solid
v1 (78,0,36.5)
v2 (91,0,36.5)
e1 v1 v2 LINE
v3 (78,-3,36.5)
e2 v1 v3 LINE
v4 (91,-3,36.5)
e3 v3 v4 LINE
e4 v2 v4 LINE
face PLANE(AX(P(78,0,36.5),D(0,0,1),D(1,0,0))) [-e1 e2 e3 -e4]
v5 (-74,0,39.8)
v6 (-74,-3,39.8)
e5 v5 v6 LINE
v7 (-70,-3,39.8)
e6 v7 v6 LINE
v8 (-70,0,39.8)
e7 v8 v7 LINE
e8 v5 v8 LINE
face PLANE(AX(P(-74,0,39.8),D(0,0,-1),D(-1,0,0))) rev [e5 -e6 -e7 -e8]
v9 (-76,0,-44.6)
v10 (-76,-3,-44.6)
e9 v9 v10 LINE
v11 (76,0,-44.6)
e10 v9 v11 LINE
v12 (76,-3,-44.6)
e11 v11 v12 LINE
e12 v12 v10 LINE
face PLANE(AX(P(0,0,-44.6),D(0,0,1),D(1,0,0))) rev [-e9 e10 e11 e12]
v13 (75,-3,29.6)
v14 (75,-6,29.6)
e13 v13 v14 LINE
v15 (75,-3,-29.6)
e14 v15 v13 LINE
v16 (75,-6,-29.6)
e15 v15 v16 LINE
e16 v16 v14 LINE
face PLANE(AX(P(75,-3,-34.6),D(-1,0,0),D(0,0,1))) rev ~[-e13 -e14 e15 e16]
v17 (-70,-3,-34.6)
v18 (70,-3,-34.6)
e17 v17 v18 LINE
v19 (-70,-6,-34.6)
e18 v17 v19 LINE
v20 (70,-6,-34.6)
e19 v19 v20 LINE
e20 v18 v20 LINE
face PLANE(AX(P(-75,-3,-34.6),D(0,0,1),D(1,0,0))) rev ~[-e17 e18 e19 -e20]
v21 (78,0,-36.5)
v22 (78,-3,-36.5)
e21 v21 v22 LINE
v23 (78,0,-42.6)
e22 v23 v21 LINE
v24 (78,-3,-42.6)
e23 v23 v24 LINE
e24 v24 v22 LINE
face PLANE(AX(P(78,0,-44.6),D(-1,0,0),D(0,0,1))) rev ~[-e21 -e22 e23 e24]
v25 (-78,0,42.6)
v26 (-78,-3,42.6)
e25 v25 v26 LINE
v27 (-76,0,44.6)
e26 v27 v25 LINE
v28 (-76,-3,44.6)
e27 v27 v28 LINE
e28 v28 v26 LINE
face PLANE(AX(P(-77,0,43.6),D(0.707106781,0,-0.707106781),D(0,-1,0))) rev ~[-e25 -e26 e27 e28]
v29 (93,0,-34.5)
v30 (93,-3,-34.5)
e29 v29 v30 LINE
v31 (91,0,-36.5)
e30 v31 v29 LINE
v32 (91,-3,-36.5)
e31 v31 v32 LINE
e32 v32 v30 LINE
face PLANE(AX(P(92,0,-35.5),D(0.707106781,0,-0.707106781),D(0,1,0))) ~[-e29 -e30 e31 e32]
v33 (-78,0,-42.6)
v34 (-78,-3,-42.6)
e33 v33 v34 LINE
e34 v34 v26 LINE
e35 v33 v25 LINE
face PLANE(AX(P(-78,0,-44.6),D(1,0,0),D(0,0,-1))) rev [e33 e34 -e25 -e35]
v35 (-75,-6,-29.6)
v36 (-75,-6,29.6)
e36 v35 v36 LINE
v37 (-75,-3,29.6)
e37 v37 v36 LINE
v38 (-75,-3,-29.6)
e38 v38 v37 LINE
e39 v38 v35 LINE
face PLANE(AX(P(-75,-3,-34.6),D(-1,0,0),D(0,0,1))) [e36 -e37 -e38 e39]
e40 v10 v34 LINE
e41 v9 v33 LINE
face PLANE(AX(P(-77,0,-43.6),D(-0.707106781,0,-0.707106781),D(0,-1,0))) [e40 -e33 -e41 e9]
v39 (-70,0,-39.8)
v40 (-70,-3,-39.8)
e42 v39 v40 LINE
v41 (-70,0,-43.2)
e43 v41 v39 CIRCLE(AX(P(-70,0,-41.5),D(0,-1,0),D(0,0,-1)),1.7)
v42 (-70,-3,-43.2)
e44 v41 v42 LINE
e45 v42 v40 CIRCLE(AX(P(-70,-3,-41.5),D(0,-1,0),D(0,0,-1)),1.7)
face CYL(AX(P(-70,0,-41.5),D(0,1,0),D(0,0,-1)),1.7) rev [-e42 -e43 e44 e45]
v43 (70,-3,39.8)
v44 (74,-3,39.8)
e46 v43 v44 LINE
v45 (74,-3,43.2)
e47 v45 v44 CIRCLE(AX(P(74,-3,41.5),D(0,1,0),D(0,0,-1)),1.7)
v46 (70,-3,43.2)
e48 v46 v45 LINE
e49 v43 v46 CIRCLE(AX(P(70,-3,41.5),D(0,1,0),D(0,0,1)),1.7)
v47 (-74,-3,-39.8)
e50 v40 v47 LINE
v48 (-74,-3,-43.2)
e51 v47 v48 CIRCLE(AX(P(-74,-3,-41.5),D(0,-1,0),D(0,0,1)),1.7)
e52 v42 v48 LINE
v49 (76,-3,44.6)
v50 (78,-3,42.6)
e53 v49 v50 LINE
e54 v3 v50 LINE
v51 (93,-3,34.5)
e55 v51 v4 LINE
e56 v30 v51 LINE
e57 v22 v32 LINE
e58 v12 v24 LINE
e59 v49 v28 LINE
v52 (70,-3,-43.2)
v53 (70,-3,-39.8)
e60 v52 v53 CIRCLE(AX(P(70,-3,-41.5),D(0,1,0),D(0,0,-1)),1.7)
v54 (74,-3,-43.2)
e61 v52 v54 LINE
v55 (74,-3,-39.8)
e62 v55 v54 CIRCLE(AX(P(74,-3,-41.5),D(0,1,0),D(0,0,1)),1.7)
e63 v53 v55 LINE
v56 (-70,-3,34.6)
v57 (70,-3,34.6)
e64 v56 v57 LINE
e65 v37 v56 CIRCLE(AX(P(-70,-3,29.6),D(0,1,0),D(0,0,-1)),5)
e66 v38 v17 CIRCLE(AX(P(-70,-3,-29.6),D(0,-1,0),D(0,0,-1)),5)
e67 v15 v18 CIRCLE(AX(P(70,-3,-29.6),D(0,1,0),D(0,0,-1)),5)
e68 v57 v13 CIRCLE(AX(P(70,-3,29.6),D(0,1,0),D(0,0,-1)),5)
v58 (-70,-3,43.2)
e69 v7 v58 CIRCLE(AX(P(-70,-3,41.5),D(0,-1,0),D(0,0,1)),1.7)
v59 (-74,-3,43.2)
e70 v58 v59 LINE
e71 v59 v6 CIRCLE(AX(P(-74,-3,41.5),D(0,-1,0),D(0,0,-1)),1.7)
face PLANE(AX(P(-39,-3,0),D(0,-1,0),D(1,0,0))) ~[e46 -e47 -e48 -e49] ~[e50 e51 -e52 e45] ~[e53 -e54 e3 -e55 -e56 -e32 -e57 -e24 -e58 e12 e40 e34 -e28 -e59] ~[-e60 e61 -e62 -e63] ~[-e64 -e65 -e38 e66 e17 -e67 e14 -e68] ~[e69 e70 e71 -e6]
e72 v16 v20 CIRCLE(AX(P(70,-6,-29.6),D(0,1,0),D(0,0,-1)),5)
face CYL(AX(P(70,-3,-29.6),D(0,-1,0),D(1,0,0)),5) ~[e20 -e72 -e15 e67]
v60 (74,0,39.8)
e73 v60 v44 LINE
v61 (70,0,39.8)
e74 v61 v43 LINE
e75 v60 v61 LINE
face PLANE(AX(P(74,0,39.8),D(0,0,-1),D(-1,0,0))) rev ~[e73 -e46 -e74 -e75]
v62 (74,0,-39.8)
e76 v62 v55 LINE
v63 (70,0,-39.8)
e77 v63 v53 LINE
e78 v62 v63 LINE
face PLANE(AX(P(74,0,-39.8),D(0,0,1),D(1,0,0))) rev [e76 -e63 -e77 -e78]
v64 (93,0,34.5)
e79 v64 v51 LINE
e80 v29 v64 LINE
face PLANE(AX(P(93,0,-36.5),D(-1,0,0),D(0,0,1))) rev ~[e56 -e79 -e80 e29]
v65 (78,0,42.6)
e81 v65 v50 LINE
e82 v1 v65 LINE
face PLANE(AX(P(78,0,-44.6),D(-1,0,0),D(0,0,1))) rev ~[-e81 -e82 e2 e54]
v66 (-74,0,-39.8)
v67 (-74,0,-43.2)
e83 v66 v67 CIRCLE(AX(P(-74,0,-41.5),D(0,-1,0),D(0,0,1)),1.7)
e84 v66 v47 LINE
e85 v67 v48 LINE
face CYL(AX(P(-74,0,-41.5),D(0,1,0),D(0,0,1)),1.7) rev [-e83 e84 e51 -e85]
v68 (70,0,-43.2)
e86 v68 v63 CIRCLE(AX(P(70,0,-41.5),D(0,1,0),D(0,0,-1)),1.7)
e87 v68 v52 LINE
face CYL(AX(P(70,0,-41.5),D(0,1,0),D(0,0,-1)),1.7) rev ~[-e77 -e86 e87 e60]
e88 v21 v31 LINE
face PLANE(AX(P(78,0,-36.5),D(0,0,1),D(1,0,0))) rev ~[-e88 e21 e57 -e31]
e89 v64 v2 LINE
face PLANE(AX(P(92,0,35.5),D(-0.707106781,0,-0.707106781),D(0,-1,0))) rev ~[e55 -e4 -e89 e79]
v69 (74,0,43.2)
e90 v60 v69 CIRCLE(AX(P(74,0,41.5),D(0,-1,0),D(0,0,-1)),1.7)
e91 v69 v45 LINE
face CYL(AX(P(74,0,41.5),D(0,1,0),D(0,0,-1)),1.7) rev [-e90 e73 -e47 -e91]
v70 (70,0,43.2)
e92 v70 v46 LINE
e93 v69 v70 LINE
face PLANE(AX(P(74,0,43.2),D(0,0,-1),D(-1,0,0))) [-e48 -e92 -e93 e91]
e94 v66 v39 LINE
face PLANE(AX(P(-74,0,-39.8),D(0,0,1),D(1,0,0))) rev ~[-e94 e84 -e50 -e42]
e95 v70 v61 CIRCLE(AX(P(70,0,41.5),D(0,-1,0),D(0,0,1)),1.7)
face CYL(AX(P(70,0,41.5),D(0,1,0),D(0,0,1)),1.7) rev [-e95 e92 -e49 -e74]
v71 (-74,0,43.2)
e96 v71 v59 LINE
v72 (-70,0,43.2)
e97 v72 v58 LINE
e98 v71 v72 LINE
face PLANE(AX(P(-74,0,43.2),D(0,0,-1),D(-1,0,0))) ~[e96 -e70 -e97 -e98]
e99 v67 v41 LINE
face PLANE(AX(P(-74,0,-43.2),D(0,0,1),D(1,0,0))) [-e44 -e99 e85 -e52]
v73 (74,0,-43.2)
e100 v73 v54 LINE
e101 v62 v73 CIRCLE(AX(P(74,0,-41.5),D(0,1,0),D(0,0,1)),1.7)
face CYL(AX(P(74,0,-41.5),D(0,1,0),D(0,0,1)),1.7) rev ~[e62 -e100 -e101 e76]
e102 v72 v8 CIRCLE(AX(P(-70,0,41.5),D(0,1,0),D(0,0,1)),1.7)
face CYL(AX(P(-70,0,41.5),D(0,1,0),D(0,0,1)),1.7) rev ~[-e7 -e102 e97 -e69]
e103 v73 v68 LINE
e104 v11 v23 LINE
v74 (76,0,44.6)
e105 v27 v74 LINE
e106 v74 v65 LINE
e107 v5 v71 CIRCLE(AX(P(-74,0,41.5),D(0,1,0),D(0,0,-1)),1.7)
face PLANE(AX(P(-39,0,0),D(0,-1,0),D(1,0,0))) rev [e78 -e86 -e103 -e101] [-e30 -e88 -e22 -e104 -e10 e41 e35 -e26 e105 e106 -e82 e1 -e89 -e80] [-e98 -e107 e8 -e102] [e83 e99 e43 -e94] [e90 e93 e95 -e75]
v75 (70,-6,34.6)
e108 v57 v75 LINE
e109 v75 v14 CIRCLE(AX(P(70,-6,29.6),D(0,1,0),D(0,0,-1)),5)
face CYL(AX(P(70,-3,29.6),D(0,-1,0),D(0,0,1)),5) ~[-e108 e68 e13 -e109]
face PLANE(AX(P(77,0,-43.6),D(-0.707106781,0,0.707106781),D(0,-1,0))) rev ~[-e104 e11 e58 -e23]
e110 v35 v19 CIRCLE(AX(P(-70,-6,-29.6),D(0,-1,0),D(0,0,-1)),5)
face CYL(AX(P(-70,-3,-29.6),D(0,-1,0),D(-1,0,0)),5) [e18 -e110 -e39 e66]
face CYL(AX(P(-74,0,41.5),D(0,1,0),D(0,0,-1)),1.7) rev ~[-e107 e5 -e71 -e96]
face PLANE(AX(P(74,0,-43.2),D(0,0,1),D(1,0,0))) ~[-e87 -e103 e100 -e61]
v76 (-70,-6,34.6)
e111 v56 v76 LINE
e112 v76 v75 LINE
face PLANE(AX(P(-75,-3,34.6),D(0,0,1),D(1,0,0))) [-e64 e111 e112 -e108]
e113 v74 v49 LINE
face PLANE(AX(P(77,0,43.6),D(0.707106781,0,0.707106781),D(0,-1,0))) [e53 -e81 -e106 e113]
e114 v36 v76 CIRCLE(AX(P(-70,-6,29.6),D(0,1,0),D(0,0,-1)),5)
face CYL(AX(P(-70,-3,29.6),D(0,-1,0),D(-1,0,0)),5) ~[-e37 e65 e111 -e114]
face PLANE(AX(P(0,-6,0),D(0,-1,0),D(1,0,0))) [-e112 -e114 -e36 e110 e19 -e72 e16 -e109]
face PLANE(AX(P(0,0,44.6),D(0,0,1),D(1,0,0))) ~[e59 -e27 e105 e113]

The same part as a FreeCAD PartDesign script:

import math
import FreeCAD as App
import Part
import Sketcher
from FreeCAD import Vector


def edges_at(feature, points):
    """Names of the edges that pass closest to the given points."""
    edges = feature.Shape.Edges
    near = lambda p: min(range(len(edges)), key=lambda i: edges[i].distToShape(Part.Vertex(*p))[0])
    return sorted({f"Edge{near(p) + 1}" for p in points})


def add_polygon(sketch, points):
    """Adds a closed chain of lines whose ends are joined by coincident constraints."""
    first, n = sketch.GeometryCount, len(points)
    for a, b in zip(points, points[1:] + points[:1]):
        sketch.addGeometry(Part.LineSegment(App.Vector(*a, 0), App.Vector(*b, 0)), False)
    for i in range(n):
        sketch.addConstraint(Sketcher.Constraint("Coincident", first + i, 2, first + (i + 1) % n, 1))

doc = App.newDocument("Part")
body = doc.addObject("PartDesign::Body", "Body")

# Sketch on XZ plane
sketch1 = doc.addObject("Sketcher::SketchObject", "Sketch")
body.addObject(sketch1)
sketch1.AttachmentSupport = (doc.XZ_Plane, [""])
sketch1.MapMode = "FlatFace"
add_polygon(sketch1, [(0, 45), (0, -45), (78, -45), (78, 45)])  # lines 0-3
sketch1.addConstraint(Sketcher.Constraint("Vertical", 0))
sketch1.addConstraint(Sketcher.Constraint("Horizontal", 1))
sketch1.addConstraint(Sketcher.Constraint("Vertical", 2))
sketch1.addConstraint(Sketcher.Constraint("Horizontal", 3))
sketch1.addConstraint(Sketcher.Constraint("Symmetric", 0, 2, 3, 2, -1, 1))
sketch1.addConstraint(Sketcher.Constraint("DistanceX", 1, 1, 1, 2, 78.0))
sketch1.addConstraint(Sketcher.Constraint("DistanceY", 0, 2, 0, 1, 89.2))
pad1 = doc.addObject("PartDesign::Pad", "Pad")
body.addObject(pad1)
pad1.Profile = sketch1
pad1.Length = 3

# Sketch on XZ plane
sketch2 = doc.addObject("Sketcher::SketchObject", "Sketch001")
body.addObject(sketch2)
sketch2.AttachmentSupport = (doc.XZ_Plane, [""])
sketch2.MapMode = "FlatFace"
sketch2.addGeometry(Part.ArcOfCircle(Part.Circle(Vector(74, 41.5, 0), Vector(0, 0, 1), 1.7), math.radians(-90), math.radians(90)), False)
sketch2.addGeometry(Part.LineSegment(Vector(74, 43.2, 0), Vector(70, 43.2, 0)), False)
sketch2.addGeometry(Part.ArcOfCircle(Part.Circle(Vector(70, 41.5, 0), Vector(0, 0, 1), 1.7), math.radians(90), math.radians(270)), False)
sketch2.addGeometry(Part.LineSegment(Vector(70, 39.8, 0), Vector(74, 39.8, 0)), False)
sketch2.addConstraint(Sketcher.Constraint("Tangent", 0, 2, 1, 1))
sketch2.addConstraint(Sketcher.Constraint("Tangent", 1, 2, 2, 1))
sketch2.addConstraint(Sketcher.Constraint("Tangent", 2, 2, 3, 1))
sketch2.addConstraint(Sketcher.Constraint("Tangent", 3, 2, 0, 1))
sketch2.addConstraint(Sketcher.Constraint("Horizontal", 1))
sketch2.addConstraint(Sketcher.Constraint("Horizontal", 3))
sketch2.addConstraint(Sketcher.Constraint("Radius", 0, 1.7))
sketch2.addConstraint(Sketcher.Constraint("DistanceX", 1, 2, 1, 1, 4.0))
sketch2.addConstraint(Sketcher.Constraint("DistanceX", -1, 1, 0, 3, 74.0))
sketch2.addConstraint(Sketcher.Constraint("DistanceY", -1, 1, 0, 3, 41.5))
pocket1 = doc.addObject("PartDesign::Pocket", "Pocket")
body.addObject(pocket1)
pocket1.Profile = sketch2
pocket1.Length = 5
pocket1.Reversed = True
doc.recompute()

mirrored = doc.addObject("PartDesign::Mirrored", "Mirrored")
body.addObject(mirrored)
mirrored.Originals = [pocket1]
mirrored.MirrorPlane = (doc.XY_Plane, [""])
body.Tip = mirrored
body2 = doc.addObject("PartDesign::Body", "Body001")
doc.recompute()

body2.BaseFeature = body
doc.recompute()

mirroring = doc.addObject("Part::Mirroring", "Mirroring")
mirroring.Source = body
mirroring.Base = Vector(0, 0, 0)
mirroring.Normal = Vector(1, 0, 0)
body3 = doc.addObject("PartDesign::Body", "Body002")
body3.BaseFeature = mirroring
boolean = doc.addObject("PartDesign::Boolean", "Boolean")
body2.addObject(boolean)
boolean.Type = "Fuse"
boolean.addObjects([body3])
doc.recompute()

chamfer = doc.addObject("PartDesign::Chamfer", "Chamfer")
body2.addObject(chamfer)
chamfer.Base = (boolean, edges_at(boolean, [
    (78, -1.5, -44.6),
    (78, -1.5, 44.6),
    (-78, -1.5, -44.6),
    (-78, -1.5, 44.6),
]))
chamfer.Size = 2

# Sketch on XZ plane
sketch3 = doc.addObject("Sketcher::SketchObject", "Sketch002")
body2.addObject(sketch3)
sketch3.AttachmentSupport = (doc.getObject("XZ_Plane001"), [""])
sketch3.MapMode = "FlatFace"
add_polygon(sketch3, [(78, 36), (78, -36), (93, -36), (93, 36)])  # lines 0-3
sketch3.addConstraint(Sketcher.Constraint("Vertical", 0))
sketch3.addConstraint(Sketcher.Constraint("Horizontal", 1))
sketch3.addConstraint(Sketcher.Constraint("Vertical", 2))
sketch3.addConstraint(Sketcher.Constraint("Horizontal", 3))
sketch3.addConstraint(Sketcher.Constraint("DistanceX", 1, 1, 1, 2, 15.0))
sketch3.addConstraint(Sketcher.Constraint("DistanceY", 0, 2, 0, 1, 73.0))
sketch3.addConstraint(Sketcher.Constraint("DistanceX", -1, 1, 0, 2, 78.0))
sketch3.addConstraint(Sketcher.Constraint("DistanceY", 0, 2, -1, 1, 36.5))
pad2 = doc.addObject("PartDesign::Pad", "Pad001")
body2.addObject(pad2)
pad2.Profile = sketch3
pad2.Length = 3
doc.recompute()

chamfer2 = doc.addObject("PartDesign::Chamfer", "Chamfer001")
body2.addObject(chamfer2)
chamfer2.Base = (pad2, edges_at(pad2, [(93, -1.5, -36.5), (93, -1.5, 36.5)]))
chamfer2.Size = 2

# Sketch on XZ plane
sketch4 = doc.addObject("Sketcher::SketchObject", "Sketch003")
body2.addObject(sketch4)
sketch4.AttachmentSupport = (doc.getObject("XZ_Plane001"), [""])
sketch4.MapMode = "FlatFace"
sketch4.AttachmentOffset = App.Placement(Vector(0, 0, 3), App.Rotation())
add_polygon(sketch4, [(-75, 35), (-75, -35), (75, -35), (75, 35)])  # lines 0-3
sketch4.addConstraint(Sketcher.Constraint("Vertical", 0))
sketch4.addConstraint(Sketcher.Constraint("Horizontal", 1))
sketch4.addConstraint(Sketcher.Constraint("Vertical", 2))
sketch4.addConstraint(Sketcher.Constraint("Horizontal", 3))
sketch4.addConstraint(Sketcher.Constraint("Symmetric", 0, 2, 2, 2, -1, 1))
sketch4.addConstraint(Sketcher.Constraint("DistanceX", 1, 1, 1, 2, 150.0))
sketch4.addConstraint(Sketcher.Constraint("DistanceY", 0, 2, 0, 1, 69.2))
pad3 = doc.addObject("PartDesign::Pad", "Pad002")
body2.addObject(pad3)
pad3.Profile = sketch4
pad3.Length = 3
doc.recompute()

fillet = doc.addObject("PartDesign::Fillet", "Fillet")
body2.addObject(fillet)
fillet.Base = (pad3, edges_at(pad3, [
    (75, -4.5, 34.6),
    (75, -4.5, -34.6),
    (-75, -4.5, 34.6),
    (-75, -4.5, -34.6),
]))
fillet.Radius = 5
mirroring.Visibility = False

doc.recompute()
